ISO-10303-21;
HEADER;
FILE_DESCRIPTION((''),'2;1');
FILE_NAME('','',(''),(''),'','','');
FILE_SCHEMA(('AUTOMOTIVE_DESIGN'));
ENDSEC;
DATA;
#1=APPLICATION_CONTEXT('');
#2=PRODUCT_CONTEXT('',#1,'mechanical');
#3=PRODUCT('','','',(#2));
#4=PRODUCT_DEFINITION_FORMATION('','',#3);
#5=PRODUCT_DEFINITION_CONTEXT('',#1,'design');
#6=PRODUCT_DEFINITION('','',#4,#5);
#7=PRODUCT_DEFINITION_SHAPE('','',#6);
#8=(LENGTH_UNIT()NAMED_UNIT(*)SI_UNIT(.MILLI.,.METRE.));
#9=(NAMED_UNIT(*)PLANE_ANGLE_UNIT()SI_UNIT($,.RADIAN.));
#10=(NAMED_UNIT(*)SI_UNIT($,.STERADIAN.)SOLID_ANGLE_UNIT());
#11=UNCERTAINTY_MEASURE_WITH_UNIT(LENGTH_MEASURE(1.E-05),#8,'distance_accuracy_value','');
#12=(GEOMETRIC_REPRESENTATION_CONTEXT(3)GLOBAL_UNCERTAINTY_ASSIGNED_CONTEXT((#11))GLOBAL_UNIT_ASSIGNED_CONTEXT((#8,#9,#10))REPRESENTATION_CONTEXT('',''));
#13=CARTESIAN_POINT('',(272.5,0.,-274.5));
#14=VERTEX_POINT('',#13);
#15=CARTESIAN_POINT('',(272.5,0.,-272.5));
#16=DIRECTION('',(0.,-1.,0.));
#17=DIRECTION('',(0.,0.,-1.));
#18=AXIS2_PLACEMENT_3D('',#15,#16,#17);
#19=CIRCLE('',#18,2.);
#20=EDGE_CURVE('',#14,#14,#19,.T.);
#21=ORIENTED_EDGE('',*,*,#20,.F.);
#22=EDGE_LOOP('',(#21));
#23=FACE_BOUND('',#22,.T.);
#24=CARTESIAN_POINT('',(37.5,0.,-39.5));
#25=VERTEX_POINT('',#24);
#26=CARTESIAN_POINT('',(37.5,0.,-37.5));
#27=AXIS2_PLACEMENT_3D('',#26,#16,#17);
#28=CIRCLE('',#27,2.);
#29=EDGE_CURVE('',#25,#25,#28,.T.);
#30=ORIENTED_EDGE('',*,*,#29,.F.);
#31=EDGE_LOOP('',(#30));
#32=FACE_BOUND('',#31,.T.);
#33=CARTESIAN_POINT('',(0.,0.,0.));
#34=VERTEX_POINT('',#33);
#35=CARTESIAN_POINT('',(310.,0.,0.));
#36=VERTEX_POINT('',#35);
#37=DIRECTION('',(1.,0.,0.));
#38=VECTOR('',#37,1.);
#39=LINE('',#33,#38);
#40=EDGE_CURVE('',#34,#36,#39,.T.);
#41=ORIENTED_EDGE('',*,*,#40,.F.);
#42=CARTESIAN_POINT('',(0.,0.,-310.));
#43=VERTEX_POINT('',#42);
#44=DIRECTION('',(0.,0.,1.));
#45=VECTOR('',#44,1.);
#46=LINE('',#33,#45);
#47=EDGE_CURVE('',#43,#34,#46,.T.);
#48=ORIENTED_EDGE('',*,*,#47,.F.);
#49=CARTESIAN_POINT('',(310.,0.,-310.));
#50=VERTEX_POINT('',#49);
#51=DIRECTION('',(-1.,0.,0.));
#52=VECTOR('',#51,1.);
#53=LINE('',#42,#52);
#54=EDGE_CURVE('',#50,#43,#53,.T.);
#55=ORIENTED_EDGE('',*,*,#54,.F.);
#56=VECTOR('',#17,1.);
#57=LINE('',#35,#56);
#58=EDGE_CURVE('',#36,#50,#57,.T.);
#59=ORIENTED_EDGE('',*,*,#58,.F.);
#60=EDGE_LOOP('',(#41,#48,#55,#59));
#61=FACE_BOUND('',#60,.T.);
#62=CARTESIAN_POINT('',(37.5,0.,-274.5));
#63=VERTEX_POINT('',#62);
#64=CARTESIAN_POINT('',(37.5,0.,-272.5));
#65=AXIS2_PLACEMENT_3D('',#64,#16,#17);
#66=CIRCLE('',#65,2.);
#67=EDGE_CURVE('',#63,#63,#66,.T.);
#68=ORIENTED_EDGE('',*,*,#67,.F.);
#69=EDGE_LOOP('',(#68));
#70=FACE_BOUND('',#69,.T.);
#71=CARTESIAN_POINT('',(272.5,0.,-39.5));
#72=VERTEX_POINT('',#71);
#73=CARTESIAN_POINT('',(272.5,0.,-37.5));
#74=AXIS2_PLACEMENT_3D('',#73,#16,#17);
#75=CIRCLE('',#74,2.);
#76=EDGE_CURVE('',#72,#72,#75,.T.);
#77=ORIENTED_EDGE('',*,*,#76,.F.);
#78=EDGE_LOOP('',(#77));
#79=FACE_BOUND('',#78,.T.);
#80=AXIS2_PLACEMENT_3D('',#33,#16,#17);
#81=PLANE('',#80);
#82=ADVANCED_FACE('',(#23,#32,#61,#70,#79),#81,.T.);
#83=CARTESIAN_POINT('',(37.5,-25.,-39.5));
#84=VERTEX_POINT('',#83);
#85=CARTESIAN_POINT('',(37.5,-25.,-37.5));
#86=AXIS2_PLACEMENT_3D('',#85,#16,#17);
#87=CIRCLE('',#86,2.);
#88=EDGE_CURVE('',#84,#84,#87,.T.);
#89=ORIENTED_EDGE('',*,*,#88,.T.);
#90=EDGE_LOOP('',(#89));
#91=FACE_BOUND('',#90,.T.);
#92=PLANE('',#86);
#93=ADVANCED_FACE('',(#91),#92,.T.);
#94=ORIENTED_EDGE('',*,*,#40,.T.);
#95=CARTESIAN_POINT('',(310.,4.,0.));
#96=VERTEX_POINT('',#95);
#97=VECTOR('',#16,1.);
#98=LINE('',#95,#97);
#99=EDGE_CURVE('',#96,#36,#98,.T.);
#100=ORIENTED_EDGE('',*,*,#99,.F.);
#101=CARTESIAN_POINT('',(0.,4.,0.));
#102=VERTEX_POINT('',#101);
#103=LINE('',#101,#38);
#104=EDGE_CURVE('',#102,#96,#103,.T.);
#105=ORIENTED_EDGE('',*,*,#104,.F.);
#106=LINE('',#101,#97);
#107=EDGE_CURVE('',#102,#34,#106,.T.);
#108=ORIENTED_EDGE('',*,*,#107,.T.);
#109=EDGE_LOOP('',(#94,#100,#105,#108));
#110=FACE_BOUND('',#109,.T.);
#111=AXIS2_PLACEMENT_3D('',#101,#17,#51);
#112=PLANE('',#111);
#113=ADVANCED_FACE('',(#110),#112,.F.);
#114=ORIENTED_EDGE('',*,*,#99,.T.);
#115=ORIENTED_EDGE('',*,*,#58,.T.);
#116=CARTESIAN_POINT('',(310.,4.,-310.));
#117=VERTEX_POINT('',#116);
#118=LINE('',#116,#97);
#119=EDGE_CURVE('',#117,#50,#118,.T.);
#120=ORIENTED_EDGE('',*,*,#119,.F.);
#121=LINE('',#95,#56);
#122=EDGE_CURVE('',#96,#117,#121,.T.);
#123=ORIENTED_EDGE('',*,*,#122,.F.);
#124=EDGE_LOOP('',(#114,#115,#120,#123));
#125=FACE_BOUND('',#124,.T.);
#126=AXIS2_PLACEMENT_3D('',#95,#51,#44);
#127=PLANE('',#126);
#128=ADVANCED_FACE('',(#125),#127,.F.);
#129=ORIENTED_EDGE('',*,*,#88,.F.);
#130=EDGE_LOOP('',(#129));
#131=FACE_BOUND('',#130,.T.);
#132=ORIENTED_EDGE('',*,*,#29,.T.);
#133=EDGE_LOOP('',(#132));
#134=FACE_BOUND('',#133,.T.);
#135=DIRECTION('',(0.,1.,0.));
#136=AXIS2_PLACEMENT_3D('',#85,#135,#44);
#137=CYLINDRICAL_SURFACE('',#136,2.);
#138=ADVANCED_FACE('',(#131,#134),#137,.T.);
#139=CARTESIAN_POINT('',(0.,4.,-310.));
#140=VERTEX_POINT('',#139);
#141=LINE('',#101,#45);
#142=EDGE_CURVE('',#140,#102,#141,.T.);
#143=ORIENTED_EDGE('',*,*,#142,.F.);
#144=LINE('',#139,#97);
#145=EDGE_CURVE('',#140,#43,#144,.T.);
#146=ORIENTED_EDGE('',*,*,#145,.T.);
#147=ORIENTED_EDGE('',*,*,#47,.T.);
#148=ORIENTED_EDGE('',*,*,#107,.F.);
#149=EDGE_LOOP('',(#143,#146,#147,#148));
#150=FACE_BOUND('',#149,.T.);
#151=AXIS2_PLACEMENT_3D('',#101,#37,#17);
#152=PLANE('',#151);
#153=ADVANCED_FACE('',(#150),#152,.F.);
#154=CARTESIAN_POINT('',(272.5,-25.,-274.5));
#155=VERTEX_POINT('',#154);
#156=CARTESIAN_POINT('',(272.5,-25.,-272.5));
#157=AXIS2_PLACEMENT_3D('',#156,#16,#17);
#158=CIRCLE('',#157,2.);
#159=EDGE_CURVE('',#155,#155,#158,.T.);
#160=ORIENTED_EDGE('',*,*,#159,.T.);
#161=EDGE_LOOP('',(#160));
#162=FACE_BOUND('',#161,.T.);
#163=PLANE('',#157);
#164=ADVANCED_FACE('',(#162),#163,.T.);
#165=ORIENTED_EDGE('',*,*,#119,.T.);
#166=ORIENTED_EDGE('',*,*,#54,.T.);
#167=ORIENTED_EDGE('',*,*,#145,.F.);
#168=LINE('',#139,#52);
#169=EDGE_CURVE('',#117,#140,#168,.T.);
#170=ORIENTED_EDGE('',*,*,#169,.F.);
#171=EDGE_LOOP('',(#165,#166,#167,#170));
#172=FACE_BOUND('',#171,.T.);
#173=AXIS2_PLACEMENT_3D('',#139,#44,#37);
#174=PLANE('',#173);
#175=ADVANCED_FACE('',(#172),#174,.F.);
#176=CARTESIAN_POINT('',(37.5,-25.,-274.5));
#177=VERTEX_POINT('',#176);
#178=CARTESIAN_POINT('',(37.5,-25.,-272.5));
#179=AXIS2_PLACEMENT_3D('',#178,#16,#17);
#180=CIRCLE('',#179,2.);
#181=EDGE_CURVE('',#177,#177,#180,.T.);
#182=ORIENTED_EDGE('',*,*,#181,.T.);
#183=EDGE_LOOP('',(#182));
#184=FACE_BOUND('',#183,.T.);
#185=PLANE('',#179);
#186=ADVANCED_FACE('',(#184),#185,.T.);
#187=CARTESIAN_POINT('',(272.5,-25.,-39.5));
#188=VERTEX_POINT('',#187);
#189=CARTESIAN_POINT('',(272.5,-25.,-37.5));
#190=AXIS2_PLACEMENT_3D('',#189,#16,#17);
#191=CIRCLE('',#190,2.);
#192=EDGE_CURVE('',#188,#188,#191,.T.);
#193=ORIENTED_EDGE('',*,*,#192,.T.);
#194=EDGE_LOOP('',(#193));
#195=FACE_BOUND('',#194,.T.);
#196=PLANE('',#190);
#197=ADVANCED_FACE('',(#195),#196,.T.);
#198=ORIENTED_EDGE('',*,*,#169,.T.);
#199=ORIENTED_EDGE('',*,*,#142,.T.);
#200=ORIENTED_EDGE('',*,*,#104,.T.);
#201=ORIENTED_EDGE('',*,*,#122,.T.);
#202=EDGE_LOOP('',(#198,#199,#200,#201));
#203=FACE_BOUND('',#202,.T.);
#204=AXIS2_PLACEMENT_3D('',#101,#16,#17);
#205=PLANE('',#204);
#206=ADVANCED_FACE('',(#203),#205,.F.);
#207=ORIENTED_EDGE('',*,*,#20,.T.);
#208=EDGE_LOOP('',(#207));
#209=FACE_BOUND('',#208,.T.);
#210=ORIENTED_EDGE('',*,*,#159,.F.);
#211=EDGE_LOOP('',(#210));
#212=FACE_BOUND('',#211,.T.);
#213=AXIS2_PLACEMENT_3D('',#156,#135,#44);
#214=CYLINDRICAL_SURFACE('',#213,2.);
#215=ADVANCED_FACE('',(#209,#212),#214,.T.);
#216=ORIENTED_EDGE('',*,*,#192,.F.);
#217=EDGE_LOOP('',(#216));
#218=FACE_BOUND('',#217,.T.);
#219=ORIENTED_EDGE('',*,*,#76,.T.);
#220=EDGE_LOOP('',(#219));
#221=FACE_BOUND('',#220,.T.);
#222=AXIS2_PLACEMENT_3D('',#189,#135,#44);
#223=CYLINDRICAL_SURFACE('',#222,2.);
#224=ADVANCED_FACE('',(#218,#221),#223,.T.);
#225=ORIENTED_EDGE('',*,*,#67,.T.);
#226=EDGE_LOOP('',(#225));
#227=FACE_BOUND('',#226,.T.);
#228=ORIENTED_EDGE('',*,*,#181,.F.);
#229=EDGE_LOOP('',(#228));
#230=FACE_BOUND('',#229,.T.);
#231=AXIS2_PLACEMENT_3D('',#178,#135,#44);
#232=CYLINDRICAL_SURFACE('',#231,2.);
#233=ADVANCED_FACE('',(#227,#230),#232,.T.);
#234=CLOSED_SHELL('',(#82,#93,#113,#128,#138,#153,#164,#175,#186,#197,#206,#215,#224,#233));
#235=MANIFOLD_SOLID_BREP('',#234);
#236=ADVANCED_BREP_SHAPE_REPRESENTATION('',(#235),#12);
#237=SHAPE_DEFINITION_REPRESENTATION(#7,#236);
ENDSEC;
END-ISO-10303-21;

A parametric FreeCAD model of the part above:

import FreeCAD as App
import Part
import Sketcher
from FreeCAD import Vector

doc = App.newDocument("Part")
body = doc.addObject("PartDesign::Body", "Body")

sketch1 = body.newObject("Sketcher::SketchObject", "Sketch")
sketch1.AttachmentSupport = (doc.getObject("XZ_Plane"), [""])
sketch1.MapMode = "FlatFace"
sketch1.addGeometry([
    Part.LineSegment(Vector(0, -310, 0), Vector(0, 0, 0)),
    Part.LineSegment(Vector(0, 0, 0), Vector(310, 0, 0)),
    Part.LineSegment(Vector(310, 0, 0), Vector(310, -310, 0)),
    Part.LineSegment(Vector(310, -310, 0), Vector(0, -310, 0)),
], False)
sketch1.addConstraint([
    Sketcher.Constraint("Coincident", 0, 2, 1, 1),
    Sketcher.Constraint("Coincident", 1, 2, 2, 1),
    Sketcher.Constraint("Coincident", 2, 2, 3, 1),
    Sketcher.Constraint("Coincident", 3, 2, 0, 1),
    Sketcher.Constraint("Vertical", 0),
    Sketcher.Constraint("Horizontal", 1),
    Sketcher.Constraint("Vertical", 2),
    Sketcher.Constraint("Horizontal", 3),
    Sketcher.Constraint("Coincident", 0, 2, -1, 1),
    Sketcher.Constraint("Equal", 3, 0),
    Sketcher.Constraint("DistanceX", 1, 1, 1, 2, 310.0),
])
pad1 = body.newObject("PartDesign::Pad", "Pad")
pad1.Profile = sketch1
pad1.Length = 4
pad1.Reversed = True

sketch2 = body.newObject("Sketcher::SketchObject", "Sketch001")
sketch2.AttachmentSupport = (doc.getObject("XZ_Plane"), [""])
sketch2.MapMode = "FlatFace"
sketch2.addGeometry([
    Part.Circle(Vector(272.5, -37.5, 0), Vector(0, 0, 1), 2),
    Part.Circle(Vector(272.5, -272.5, 0), Vector(0, 0, 1), 2),
    Part.Circle(Vector(37.5, -37.5, 0), Vector(0, 0, 1), 2),
    Part.Circle(Vector(37.5, -272.5, 0), Vector(0, 0, 1), 2),
], False)
sketch2.addConstraint([
    Sketcher.Constraint("Equal", 0, 1),
    Sketcher.Constraint("Equal", 1, 2),
    Sketcher.Constraint("Equal", 2, 3),
    Sketcher.Constraint("Horizontal", 0, 3, 2, 3),
    Sketcher.Constraint("Horizontal", 1, 3, 3, 3),
    Sketcher.Constraint("Vertical", 0, 3, 1, 3),
    Sketcher.Constraint("Vertical", 2, 3, 3, 3),
    Sketcher.Constraint("Diameter", 0, 4.0),
    Sketcher.Constraint("DistanceY", 1, 3, 0, 3, 235.0),
    Sketcher.Constraint("DistanceX", 2, 3, 0, 3, 235.0),
    Sketcher.Constraint("DistanceX", -1, 1, 0, 3, 272.5),
    Sketcher.Constraint("DistanceY", 0, 3, -1, 1, 37.5),
])
pad2 = body.newObject("PartDesign::Pad", "Pad001")
pad2.Profile = sketch2
pad2.Length = 25

doc.recompute()
